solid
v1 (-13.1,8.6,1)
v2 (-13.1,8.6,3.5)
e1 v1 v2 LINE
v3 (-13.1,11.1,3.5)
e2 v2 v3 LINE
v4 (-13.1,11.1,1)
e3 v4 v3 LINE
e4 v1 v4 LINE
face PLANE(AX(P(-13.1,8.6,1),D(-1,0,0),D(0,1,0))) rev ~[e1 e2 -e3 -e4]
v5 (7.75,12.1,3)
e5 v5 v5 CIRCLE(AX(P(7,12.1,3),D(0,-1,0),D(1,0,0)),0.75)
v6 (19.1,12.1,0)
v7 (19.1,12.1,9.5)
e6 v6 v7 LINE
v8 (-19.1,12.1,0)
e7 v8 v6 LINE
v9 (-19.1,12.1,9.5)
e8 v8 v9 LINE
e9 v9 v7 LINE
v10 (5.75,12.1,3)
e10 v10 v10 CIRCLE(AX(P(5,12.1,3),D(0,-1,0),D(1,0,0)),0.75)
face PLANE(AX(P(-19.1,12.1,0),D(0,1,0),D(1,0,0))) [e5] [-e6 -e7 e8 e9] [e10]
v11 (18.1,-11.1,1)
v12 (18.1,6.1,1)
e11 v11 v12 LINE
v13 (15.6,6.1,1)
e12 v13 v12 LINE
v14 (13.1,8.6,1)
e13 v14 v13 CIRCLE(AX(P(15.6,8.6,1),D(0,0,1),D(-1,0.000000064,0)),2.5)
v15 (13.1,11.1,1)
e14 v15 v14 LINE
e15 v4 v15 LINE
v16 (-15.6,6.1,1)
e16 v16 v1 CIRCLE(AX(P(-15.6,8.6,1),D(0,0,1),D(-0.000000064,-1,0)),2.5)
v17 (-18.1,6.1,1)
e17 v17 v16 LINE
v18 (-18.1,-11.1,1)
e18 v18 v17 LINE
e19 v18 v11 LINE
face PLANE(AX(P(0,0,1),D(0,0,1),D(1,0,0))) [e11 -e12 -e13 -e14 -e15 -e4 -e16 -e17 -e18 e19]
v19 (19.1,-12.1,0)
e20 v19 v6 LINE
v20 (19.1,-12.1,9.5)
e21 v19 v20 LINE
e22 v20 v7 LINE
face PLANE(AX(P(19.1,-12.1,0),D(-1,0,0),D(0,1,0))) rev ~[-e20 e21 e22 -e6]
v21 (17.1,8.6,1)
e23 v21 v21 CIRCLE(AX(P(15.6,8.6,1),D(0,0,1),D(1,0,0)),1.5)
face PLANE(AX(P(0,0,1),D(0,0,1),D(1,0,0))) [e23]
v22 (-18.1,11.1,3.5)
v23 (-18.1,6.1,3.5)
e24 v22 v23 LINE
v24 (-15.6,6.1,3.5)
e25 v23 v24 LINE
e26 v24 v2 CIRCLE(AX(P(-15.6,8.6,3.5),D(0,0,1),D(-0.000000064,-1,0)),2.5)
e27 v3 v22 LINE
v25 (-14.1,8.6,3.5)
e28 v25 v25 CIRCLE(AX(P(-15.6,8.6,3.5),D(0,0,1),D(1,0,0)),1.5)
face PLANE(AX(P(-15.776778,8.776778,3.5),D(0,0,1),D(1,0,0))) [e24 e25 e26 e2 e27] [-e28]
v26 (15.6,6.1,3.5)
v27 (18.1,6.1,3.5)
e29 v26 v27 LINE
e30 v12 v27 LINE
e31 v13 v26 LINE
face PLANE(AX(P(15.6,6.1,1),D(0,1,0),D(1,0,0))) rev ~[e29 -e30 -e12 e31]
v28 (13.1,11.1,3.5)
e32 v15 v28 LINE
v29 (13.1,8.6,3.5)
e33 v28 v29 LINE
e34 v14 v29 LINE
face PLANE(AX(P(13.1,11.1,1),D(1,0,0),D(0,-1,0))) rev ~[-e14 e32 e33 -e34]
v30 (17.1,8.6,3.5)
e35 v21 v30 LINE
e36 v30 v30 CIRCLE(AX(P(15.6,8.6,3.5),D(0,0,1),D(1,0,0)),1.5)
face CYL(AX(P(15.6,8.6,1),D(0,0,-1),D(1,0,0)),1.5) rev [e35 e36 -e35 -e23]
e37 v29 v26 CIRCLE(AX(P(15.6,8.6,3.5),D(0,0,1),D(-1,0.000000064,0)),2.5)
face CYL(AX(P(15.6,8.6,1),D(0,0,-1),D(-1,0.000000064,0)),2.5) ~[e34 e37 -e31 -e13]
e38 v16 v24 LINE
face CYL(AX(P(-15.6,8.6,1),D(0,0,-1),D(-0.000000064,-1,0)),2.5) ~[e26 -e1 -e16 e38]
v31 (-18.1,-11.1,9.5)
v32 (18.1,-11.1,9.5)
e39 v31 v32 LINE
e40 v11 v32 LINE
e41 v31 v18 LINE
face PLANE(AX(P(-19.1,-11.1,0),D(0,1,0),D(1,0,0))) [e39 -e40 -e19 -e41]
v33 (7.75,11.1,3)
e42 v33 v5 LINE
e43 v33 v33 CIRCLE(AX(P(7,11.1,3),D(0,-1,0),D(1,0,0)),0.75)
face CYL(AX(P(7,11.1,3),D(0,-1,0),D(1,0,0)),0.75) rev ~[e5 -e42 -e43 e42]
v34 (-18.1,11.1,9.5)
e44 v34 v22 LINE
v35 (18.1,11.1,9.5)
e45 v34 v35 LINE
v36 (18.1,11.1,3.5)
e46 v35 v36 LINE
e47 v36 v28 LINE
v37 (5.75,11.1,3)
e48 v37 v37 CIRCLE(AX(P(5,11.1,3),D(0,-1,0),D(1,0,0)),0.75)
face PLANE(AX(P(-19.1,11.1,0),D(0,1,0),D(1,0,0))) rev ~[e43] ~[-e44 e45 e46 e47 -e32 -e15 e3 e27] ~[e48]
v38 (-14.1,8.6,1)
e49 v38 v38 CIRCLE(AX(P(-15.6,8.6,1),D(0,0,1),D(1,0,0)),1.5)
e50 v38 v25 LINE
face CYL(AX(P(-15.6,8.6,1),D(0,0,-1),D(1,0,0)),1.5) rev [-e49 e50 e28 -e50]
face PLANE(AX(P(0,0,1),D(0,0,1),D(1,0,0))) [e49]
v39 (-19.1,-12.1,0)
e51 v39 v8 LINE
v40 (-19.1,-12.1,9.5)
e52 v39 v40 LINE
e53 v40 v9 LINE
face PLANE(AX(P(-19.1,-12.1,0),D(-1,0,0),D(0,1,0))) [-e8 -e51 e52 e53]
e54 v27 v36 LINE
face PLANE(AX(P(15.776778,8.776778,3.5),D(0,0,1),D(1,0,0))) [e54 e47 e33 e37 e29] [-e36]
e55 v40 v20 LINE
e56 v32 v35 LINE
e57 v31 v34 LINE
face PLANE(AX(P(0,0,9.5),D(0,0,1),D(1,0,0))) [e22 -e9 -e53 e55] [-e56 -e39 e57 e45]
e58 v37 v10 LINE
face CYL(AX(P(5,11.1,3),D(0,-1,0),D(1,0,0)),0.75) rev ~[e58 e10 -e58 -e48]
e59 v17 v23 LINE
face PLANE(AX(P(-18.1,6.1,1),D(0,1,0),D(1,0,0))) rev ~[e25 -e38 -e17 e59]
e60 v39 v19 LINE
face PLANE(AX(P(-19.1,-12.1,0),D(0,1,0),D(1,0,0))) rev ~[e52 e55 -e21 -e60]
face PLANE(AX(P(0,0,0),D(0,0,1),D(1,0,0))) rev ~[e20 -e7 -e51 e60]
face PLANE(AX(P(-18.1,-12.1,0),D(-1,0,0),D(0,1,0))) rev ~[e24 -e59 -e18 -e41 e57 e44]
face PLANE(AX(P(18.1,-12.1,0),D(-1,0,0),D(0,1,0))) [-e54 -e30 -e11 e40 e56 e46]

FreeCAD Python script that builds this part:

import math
import FreeCAD as App
import Part
import Sketcher

V = App.Vector


def faces_at(feature, points):
    """Names of the faces that lie closest to the given points."""
    faces = feature.Shape.Faces
    near = lambda p: min(range(len(faces)), key=lambda i: faces[i].distToShape(Part.Vertex(*p))[0])
    return sorted({f"Face{near(p) + 1}" for p in points})


def add_polygon(sketch, points):
    """Adds a closed chain of lines whose ends are joined by coincident constraints."""
    first, n = sketch.GeometryCount, len(points)
    for a, b in zip(points, points[1:] + points[:1]):
        sketch.addGeometry(Part.LineSegment(App.Vector(*a, 0), App.Vector(*b, 0)), False)
    for i in range(n):
        sketch.addConstraint(Sketcher.Constraint("Coincident", first + i, 2, first + (i + 1) % n, 1))

doc = App.newDocument("Part")
body = doc.addObject("PartDesign::Body", "Body")

sketch1 = doc.addObject("Sketcher::SketchObject", "Sketch")
body.addObject(sketch1)
sketch1.AttachmentSupport = (doc.XY_Plane, [""])
sketch1.MapMode = "FlatFace"
add_polygon(sketch1, [(-19, 12), (-19, -12), (19, -12), (19, 12)])
sketch1.addConstraint(Sketcher.Constraint("Vertical", 0))
sketch1.addConstraint(Sketcher.Constraint("Horizontal", 1))
sketch1.addConstraint(Sketcher.Constraint("Vertical", 2))
sketch1.addConstraint(Sketcher.Constraint("Horizontal", 3))
sketch1.addConstraint(Sketcher.Constraint("Symmetric", 0, 2, 2, 2, -1, 1))
sketch1.addConstraint(Sketcher.Constraint("DistanceX", 1, 1, 1, 2, 38.2))
sketch1.addConstraint(Sketcher.Constraint("DistanceY", 0, 2, 0, 1, 24.2))
pad1 = doc.addObject("PartDesign::Pad", "Pad")
body.addObject(pad1)
pad1.Profile = sketch1
pad1.Length = 9.5
doc.recompute()

thickness = doc.addObject("PartDesign::Thickness", "Thickness")
body.addObject(thickness)
thickness.Base = (pad1, faces_at(pad1, [(0, 0, 9.5)]))
thickness.Value = 1
thickness.Reversed = True
thickness.Join = "Arc"

sketch2 = doc.addObject("Sketcher::SketchObject", "Sketch001")
body.addObject(sketch2)
sketch2.AttachmentSupport = (doc.XY_Plane, [""])
sketch2.MapMode = "FlatFace"
sketch2.AttachmentOffset = App.Placement(V(0, 0, 1), App.Rotation())
sketch2.addGeometry(Part.LineSegment(V(-18.1, 6.1, 0), V(-15.6, 6.1, 0)), False)
sketch2.addGeometry(Part.ArcOfCircle(Part.Circle(V(-15.6, 8.6, 0), V(0, 0, 1), 2.5), math.radians(-90), math.radians(0)), False)
sketch2.addGeometry(Part.LineSegment(V(-13.1, 8.6, 0), V(-13.1, 11.1, 0)), False)
sketch2.addGeometry(Part.LineSegment(V(-13.1, 11.1, 0), V(-18.1, 11.1, 0)), False)
sketch2.addGeometry(Part.LineSegment(V(-18.1, 11.1, 0), V(-18.1, 6.1, 0)), False)
sketch2.addGeometry(Part.Circle(V(-15.6, 8.6, 0), V(0, 0, 1), 1.5), False)
sketch2.addGeometry(Part.LineSegment(V(13.1, 11.1, 0), V(13.1, 8.6, 0)), False)
sketch2.addGeometry(Part.ArcOfCircle(Part.Circle(V(15.6, 8.6, 0), V(0, 0, 1), 2.5), math.radians(180), math.radians(270)), False)
sketch2.addGeometry(Part.LineSegment(V(15.6, 6.1, 0), V(18.1, 6.1, 0)), False)
sketch2.addGeometry(Part.LineSegment(V(18.1, 6.1, 0), V(18.1, 11.1, 0)), False)
sketch2.addGeometry(Part.LineSegment(V(18.1, 11.1, 0), V(13.1, 11.1, 0)), False)
sketch2.addGeometry(Part.Circle(V(15.6, 8.6, 0), V(0, 0, 1), 1.5), False)
sketch2.addConstraint(Sketcher.Constraint("Tangent", 0, 2, 1, 1))
sketch2.addConstraint(Sketcher.Constraint("Tangent", 1, 2, 2, 1))
sketch2.addConstraint(Sketcher.Constraint("Coincident", 2, 2, 3, 1))
sketch2.addConstraint(Sketcher.Constraint("Coincident", 3, 2, 4, 1))
sketch2.addConstraint(Sketcher.Constraint("Coincident", 4, 2, 0, 1))
sketch2.addConstraint(Sketcher.Constraint("Tangent", 6, 2, 7, 1))
sketch2.addConstraint(Sketcher.Constraint("Tangent", 7, 2, 8, 1))
sketch2.addConstraint(Sketcher.Constraint("Coincident", 8, 2, 9, 1))
sketch2.addConstraint(Sketcher.Constraint("Coincident", 9, 2, 10, 1))
sketch2.addConstraint(Sketcher.Constraint("Coincident", 10, 2, 6, 1))
sketch2.addConstraint(Sketcher.Constraint("Horizontal", 0))
sketch2.addConstraint(Sketcher.Constraint("Vertical", 2))
sketch2.addConstraint(Sketcher.Constraint("Horizontal", 3))
sketch2.addConstraint(Sketcher.Constraint("Vertical", 4))
sketch2.addConstraint(Sketcher.Constraint("Vertical", 6))
sketch2.addConstraint(Sketcher.Constraint("Horizontal", 8))
sketch2.addConstraint(Sketcher.Constraint("Vertical", 9))
sketch2.addConstraint(Sketcher.Constraint("Horizontal", 10))
sketch2.addConstraint(Sketcher.Constraint("Coincident", 5, 3, 1, 3))
sketch2.addConstraint(Sketcher.Constraint("Coincident", 11, 3, 7, 3))
sketch2.addConstraint(Sketcher.Constraint("Equal", 1, 7))
sketch2.addConstraint(Sketcher.Constraint("Equal", 5, 11))
sketch2.addConstraint(Sketcher.Constraint("Symmetric", 1, 3, 7, 3, -2))
sketch2.addConstraint(Sketcher.Constraint("Symmetric", 3, 2, 9, 2, -2))
sketch2.addConstraint(Sketcher.Constraint("Equal", 8, 2))
sketch2.addConstraint(Sketcher.Constraint("Diameter", 5, 3.0))
sketch2.addConstraint(Sketcher.Constraint("Radius", 1, 2.5))
sketch2.addConstraint(Sketcher.Constraint("DistanceX", 3, 2, 3, 1, 5.0))
sketch2.addConstraint(Sketcher.Constraint("DistanceX", 1, 3, -1, 1, 15.6))
sketch2.addConstraint(Sketcher.Constraint("DistanceY", -1, 1, 1, 3, 8.6))
pad2 = doc.addObject("PartDesign::Pad", "Pad001")
body.addObject(pad2)
pad2.Profile = sketch2
pad2.Length = 2.5

sketch3 = doc.addObject("Sketcher::SketchObject", "Sketch002")
body.addObject(sketch3)
sketch3.AttachmentSupport = (doc.XZ_Plane, [""])
sketch3.MapMode = "FlatFace"
sketch3.AttachmentOffset = App.Placement(V(0, 0, -11.1), App.Rotation())
sketch3.addGeometry(Part.Circle(V(5, 3, 0), V(0, 0, 1), 0.8), False)
sketch3.addGeometry(Part.Circle(V(7, 3, 0), V(0, 0, 1), 0.8), False)
sketch3.addConstraint(Sketcher.Constraint("Equal", 0, 1))
sketch3.addConstraint(Sketcher.Constraint("Horizontal", 0, 3, 1, 3))
sketch3.addConstraint(Sketcher.Constraint("Diameter", 0, 1.5))
sketch3.addConstraint(Sketcher.Constraint("DistanceX", -1, 1, 0, 3, 5.0))
sketch3.addConstraint(Sketcher.Constraint("DistanceY", -1, 1, 0, 3, 3.0))
sketch3.addConstraint(Sketcher.Constraint("DistanceX", -1, 1, 1, 3, 7.0))
pocket1 = doc.addObject("PartDesign::Pocket", "Pocket")
body.addObject(pocket1)
pocket1.Profile = sketch3
pocket1.Type = "ThroughAll"

doc.recompute()
